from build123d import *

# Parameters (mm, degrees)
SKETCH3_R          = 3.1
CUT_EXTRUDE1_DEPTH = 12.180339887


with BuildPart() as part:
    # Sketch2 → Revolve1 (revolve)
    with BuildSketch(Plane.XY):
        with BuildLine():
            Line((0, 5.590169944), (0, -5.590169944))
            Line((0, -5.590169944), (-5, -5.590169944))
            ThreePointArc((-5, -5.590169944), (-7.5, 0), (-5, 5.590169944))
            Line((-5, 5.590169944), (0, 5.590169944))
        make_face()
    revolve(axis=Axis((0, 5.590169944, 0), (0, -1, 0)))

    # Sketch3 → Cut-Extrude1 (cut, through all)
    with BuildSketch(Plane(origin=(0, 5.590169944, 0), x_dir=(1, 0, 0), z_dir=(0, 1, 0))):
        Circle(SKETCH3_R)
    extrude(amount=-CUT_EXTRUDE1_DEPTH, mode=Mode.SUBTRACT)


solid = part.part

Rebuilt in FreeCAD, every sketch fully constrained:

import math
import FreeCAD as App
import Part
import Sketcher
from FreeCAD import Vector

doc = App.newDocument("Part")
params = doc.addObject("Spreadsheet::Sheet", "Params")
for row, (alias, value) in enumerate([
    ("sketch1_radius", "7.5 mm"),
    ("sketch1_width", "5 mm"),
    ("revolution_angle", "360 deg"),
    ("sketch2_diameter", "6.2 mm"),
], start=1):
    params.set(f"A{row}", alias)
    params.set(f"B{row}", "=" + value)
    params.setAlias(f"B{row}", alias)

body = doc.addObject("PartDesign::Body", "Body")

sketch1 = body.newObject("Sketcher::SketchObject", "Sketch")
sketch1.AttachmentSupport = (doc.getObject("XY_Plane"), [""])
sketch1.MapMode = "FlatFace"
sketch1.addGeometry([
    Part.LineSegment(Vector(0, -5.59017, 0), Vector(0, 5.59017, 0)),
    Part.LineSegment(Vector(0, 5.59017, 0), Vector(-5, 5.59017, 0)),
    Part.ArcOfCircle(Part.Circle(Vector(0, 0, 0), Vector(0, 0, 1), 7.5), math.radians(131.810315), math.radians(228.189685)),
    Part.LineSegment(Vector(-5, -5.59017, 0), Vector(0, -5.59017, 0)),
], False)
sketch1.addConstraint([
    Sketcher.Constraint("Coincident", 0, 2, 1, 1),
    Sketcher.Constraint("Coincident", 1, 2, 2, 1),
    Sketcher.Constraint("Coincident", 2, 2, 3, 1),
    Sketcher.Constraint("Coincident", 3, 2, 0, 1),
    Sketcher.Constraint("Vertical", 0),
    Sketcher.Constraint("Horizontal", 1),
    Sketcher.Constraint("Horizontal", 3),
    Sketcher.Constraint("Coincident", 2, 3, -1, 1),
    Sketcher.Constraint("Symmetric", 0, 2, 3, 2, -1, 1),
    Sketcher.Constraint("Radius", 2, 7.5),
    Sketcher.Constraint("DistanceX", 1, 2, 1, 1, 5.0),
])
sketch1.setExpression("Constraints[9]", "Params.sketch1_radius")
sketch1.setExpression("Constraints[10]", "Params.sketch1_width")
revolution = body.newObject("PartDesign::Revolution", "Revolution")
revolution.Profile = sketch1
revolution.ReferenceAxis = (sketch1, ["V_Axis"])
revolution.setExpression("Angle", "Params.revolution_angle")

sketch2 = body.newObject("Sketcher::SketchObject", "Sketch001")
sketch2.AttachmentSupport = (doc.getObject("XZ_Plane"), [""])
sketch2.MapMode = "FlatFace"
sketch2.AttachmentOffset = App.Placement(Vector(0, 0, -5.59017), App.Rotation())
sketch2.addGeometry(Part.Circle(Vector(0, 0, 0), Vector(0, 0, 1), 3.1), False)
sketch2.addConstraint([
    Sketcher.Constraint("Coincident", 0, 3, -1, 1),
    Sketcher.Constraint("Diameter", 0, 6.2),
])
sketch2.setExpression("Constraints[1]", "Params.sketch2_diameter")
pocket1 = body.newObject("PartDesign::Pocket", "Pocket")
pocket1.Profile = sketch2
pocket1.Type = "ThroughAll"
pocket1.Reversed = True

doc.recompute()
